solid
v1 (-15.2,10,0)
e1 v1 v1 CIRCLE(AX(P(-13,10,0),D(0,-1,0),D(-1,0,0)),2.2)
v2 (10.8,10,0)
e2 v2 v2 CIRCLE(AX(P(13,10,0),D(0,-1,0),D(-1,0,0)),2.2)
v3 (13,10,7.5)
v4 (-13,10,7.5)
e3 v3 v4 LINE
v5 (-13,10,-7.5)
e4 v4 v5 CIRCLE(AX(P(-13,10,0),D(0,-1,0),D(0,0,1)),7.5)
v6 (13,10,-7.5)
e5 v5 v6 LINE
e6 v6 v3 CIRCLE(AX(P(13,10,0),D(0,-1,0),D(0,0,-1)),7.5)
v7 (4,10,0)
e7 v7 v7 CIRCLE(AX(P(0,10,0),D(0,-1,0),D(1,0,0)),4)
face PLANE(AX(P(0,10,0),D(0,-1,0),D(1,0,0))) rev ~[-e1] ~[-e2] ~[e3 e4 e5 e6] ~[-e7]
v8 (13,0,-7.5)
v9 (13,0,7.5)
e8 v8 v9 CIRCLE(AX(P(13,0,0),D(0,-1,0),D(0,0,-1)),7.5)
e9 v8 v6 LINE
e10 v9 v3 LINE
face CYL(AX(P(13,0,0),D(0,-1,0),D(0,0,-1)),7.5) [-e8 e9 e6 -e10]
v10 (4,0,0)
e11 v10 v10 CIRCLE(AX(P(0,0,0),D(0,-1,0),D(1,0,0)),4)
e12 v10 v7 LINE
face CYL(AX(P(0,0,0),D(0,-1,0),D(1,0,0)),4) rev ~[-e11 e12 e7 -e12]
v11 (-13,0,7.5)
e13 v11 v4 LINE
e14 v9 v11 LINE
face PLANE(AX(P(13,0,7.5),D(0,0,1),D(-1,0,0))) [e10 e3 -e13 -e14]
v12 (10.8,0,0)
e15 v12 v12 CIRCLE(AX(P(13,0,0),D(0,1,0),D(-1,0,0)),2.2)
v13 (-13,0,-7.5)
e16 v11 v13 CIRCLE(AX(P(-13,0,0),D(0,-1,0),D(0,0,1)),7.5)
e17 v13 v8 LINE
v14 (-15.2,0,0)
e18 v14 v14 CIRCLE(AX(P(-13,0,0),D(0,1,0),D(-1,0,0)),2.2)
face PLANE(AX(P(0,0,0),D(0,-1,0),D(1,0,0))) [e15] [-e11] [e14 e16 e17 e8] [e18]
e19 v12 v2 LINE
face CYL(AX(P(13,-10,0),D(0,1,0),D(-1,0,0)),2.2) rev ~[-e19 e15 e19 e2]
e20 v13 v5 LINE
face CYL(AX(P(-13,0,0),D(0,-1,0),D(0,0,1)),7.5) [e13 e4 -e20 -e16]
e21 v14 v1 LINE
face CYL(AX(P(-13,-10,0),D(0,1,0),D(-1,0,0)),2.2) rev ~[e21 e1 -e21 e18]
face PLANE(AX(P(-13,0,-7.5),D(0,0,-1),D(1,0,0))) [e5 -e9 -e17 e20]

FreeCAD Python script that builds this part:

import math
import FreeCAD as App
import Part
import Sketcher
from FreeCAD import Vector

doc = App.newDocument("Part")
params = doc.addObject("Spreadsheet::Sheet", "Params")
for row, (alias, value) in enumerate([
    ("sketch1_diameter", "8 mm"),
    ("sketch1_radius", "7.5 mm"),
    ("sketch1_width", "26 mm"),
    ("pad1_length", "10 mm"),
    ("sketch2_diameter", "4.4 mm"),
    ("hole_diameter", "4.4 mm"),
    ("hole_depth", "10 mm"),
], start=1):
    params.set(f"A{row}", alias)
    params.set(f"B{row}", "=" + value)
    params.setAlias(f"B{row}", alias)

body = doc.addObject("PartDesign::Body", "Body")

sketch1 = body.newObject("Sketcher::SketchObject", "Sketch")
sketch1.AttachmentSupport = (doc.getObject("XZ_Plane"), [""])
sketch1.MapMode = "FlatFace"
sketch1.addGeometry([
    Part.LineSegment(Vector(-13, -7.5, 0), Vector(13, -7.5, 0)),
    Part.ArcOfCircle(Part.Circle(Vector(13, 0, 0), Vector(0, 0, 1), 7.5), math.radians(-90), math.radians(90)),
    Part.LineSegment(Vector(13, 7.5, 0), Vector(-13, 7.5, 0)),
    Part.ArcOfCircle(Part.Circle(Vector(-13, 0, 0), Vector(0, 0, 1), 7.5), math.radians(90), math.radians(270)),
    Part.Circle(Vector(0, 0, 0), Vector(0, 0, 1), 4),
], False)
sketch1.addConstraint([
    Sketcher.Constraint("Tangent", 0, 2, 1, 1),
    Sketcher.Constraint("Tangent", 1, 2, 2, 1),
    Sketcher.Constraint("Tangent", 2, 2, 3, 1),
    Sketcher.Constraint("Tangent", 3, 2, 0, 1),
    Sketcher.Constraint("Horizontal", 0),
    Sketcher.Constraint("Horizontal", 2),
    Sketcher.Constraint("Coincident", 4, 3, -1, 1),
    Sketcher.Constraint("Symmetric", 1, 3, 3, 3, -1, 1),
    Sketcher.Constraint("Diameter", 4, 8.0),
    Sketcher.Constraint("Radius", 1, 7.5),
    Sketcher.Constraint("DistanceX", 0, 1, 0, 2, 26.0),
])
sketch1.setExpression("Constraints[8]", "Params.sketch1_diameter")
sketch1.setExpression("Constraints[9]", "Params.sketch1_radius")
sketch1.setExpression("Constraints[10]", "Params.sketch1_width")
pad1 = body.newObject("PartDesign::Pad", "Pad")
pad1.Profile = sketch1
pad1.setExpression("Length", "Params.pad1_length")
pad1.Reversed = True

sketch2 = body.newObject("Sketcher::SketchObject", "Sketch001")
sketch2.AttachmentSupport = (doc.getObject("XZ_Plane"), [""])
sketch2.MapMode = "FlatFace"
sketch2.addGeometry([
    Part.Circle(Vector(-13, 0, 0), Vector(0, 0, 1), 2.2),
    Part.Circle(Vector(13, 0, 0), Vector(0, 0, 1), 2.2),
], False)
sketch2.addConstraint([
    Sketcher.Constraint("Equal", 0, 1),
    Sketcher.Constraint("Symmetric", 0, 3, 1, 3, -1, 1),
    Sketcher.Constraint("PointOnObject", 0, 3, -1),
    Sketcher.Constraint("Diameter", 0, 4.4),
    Sketcher.Constraint("DistanceX", 0, 3, -1, 1, 13.0),
])
sketch2.setExpression("Constraints[3]", "Params.sketch2_diameter")
doc.recompute()
hole = body.newObject("PartDesign::Hole", "Hole")
hole.Profile = sketch2
hole.ThreadType = "None"
hole.setExpression("Diameter", "Params.hole_diameter")
hole.DepthType = "Dimension"
hole.setExpression("Depth", "Params.hole_depth")
hole.DrillPoint = "Angled"
hole.DrillPointAngle = 118

doc.recompute()
